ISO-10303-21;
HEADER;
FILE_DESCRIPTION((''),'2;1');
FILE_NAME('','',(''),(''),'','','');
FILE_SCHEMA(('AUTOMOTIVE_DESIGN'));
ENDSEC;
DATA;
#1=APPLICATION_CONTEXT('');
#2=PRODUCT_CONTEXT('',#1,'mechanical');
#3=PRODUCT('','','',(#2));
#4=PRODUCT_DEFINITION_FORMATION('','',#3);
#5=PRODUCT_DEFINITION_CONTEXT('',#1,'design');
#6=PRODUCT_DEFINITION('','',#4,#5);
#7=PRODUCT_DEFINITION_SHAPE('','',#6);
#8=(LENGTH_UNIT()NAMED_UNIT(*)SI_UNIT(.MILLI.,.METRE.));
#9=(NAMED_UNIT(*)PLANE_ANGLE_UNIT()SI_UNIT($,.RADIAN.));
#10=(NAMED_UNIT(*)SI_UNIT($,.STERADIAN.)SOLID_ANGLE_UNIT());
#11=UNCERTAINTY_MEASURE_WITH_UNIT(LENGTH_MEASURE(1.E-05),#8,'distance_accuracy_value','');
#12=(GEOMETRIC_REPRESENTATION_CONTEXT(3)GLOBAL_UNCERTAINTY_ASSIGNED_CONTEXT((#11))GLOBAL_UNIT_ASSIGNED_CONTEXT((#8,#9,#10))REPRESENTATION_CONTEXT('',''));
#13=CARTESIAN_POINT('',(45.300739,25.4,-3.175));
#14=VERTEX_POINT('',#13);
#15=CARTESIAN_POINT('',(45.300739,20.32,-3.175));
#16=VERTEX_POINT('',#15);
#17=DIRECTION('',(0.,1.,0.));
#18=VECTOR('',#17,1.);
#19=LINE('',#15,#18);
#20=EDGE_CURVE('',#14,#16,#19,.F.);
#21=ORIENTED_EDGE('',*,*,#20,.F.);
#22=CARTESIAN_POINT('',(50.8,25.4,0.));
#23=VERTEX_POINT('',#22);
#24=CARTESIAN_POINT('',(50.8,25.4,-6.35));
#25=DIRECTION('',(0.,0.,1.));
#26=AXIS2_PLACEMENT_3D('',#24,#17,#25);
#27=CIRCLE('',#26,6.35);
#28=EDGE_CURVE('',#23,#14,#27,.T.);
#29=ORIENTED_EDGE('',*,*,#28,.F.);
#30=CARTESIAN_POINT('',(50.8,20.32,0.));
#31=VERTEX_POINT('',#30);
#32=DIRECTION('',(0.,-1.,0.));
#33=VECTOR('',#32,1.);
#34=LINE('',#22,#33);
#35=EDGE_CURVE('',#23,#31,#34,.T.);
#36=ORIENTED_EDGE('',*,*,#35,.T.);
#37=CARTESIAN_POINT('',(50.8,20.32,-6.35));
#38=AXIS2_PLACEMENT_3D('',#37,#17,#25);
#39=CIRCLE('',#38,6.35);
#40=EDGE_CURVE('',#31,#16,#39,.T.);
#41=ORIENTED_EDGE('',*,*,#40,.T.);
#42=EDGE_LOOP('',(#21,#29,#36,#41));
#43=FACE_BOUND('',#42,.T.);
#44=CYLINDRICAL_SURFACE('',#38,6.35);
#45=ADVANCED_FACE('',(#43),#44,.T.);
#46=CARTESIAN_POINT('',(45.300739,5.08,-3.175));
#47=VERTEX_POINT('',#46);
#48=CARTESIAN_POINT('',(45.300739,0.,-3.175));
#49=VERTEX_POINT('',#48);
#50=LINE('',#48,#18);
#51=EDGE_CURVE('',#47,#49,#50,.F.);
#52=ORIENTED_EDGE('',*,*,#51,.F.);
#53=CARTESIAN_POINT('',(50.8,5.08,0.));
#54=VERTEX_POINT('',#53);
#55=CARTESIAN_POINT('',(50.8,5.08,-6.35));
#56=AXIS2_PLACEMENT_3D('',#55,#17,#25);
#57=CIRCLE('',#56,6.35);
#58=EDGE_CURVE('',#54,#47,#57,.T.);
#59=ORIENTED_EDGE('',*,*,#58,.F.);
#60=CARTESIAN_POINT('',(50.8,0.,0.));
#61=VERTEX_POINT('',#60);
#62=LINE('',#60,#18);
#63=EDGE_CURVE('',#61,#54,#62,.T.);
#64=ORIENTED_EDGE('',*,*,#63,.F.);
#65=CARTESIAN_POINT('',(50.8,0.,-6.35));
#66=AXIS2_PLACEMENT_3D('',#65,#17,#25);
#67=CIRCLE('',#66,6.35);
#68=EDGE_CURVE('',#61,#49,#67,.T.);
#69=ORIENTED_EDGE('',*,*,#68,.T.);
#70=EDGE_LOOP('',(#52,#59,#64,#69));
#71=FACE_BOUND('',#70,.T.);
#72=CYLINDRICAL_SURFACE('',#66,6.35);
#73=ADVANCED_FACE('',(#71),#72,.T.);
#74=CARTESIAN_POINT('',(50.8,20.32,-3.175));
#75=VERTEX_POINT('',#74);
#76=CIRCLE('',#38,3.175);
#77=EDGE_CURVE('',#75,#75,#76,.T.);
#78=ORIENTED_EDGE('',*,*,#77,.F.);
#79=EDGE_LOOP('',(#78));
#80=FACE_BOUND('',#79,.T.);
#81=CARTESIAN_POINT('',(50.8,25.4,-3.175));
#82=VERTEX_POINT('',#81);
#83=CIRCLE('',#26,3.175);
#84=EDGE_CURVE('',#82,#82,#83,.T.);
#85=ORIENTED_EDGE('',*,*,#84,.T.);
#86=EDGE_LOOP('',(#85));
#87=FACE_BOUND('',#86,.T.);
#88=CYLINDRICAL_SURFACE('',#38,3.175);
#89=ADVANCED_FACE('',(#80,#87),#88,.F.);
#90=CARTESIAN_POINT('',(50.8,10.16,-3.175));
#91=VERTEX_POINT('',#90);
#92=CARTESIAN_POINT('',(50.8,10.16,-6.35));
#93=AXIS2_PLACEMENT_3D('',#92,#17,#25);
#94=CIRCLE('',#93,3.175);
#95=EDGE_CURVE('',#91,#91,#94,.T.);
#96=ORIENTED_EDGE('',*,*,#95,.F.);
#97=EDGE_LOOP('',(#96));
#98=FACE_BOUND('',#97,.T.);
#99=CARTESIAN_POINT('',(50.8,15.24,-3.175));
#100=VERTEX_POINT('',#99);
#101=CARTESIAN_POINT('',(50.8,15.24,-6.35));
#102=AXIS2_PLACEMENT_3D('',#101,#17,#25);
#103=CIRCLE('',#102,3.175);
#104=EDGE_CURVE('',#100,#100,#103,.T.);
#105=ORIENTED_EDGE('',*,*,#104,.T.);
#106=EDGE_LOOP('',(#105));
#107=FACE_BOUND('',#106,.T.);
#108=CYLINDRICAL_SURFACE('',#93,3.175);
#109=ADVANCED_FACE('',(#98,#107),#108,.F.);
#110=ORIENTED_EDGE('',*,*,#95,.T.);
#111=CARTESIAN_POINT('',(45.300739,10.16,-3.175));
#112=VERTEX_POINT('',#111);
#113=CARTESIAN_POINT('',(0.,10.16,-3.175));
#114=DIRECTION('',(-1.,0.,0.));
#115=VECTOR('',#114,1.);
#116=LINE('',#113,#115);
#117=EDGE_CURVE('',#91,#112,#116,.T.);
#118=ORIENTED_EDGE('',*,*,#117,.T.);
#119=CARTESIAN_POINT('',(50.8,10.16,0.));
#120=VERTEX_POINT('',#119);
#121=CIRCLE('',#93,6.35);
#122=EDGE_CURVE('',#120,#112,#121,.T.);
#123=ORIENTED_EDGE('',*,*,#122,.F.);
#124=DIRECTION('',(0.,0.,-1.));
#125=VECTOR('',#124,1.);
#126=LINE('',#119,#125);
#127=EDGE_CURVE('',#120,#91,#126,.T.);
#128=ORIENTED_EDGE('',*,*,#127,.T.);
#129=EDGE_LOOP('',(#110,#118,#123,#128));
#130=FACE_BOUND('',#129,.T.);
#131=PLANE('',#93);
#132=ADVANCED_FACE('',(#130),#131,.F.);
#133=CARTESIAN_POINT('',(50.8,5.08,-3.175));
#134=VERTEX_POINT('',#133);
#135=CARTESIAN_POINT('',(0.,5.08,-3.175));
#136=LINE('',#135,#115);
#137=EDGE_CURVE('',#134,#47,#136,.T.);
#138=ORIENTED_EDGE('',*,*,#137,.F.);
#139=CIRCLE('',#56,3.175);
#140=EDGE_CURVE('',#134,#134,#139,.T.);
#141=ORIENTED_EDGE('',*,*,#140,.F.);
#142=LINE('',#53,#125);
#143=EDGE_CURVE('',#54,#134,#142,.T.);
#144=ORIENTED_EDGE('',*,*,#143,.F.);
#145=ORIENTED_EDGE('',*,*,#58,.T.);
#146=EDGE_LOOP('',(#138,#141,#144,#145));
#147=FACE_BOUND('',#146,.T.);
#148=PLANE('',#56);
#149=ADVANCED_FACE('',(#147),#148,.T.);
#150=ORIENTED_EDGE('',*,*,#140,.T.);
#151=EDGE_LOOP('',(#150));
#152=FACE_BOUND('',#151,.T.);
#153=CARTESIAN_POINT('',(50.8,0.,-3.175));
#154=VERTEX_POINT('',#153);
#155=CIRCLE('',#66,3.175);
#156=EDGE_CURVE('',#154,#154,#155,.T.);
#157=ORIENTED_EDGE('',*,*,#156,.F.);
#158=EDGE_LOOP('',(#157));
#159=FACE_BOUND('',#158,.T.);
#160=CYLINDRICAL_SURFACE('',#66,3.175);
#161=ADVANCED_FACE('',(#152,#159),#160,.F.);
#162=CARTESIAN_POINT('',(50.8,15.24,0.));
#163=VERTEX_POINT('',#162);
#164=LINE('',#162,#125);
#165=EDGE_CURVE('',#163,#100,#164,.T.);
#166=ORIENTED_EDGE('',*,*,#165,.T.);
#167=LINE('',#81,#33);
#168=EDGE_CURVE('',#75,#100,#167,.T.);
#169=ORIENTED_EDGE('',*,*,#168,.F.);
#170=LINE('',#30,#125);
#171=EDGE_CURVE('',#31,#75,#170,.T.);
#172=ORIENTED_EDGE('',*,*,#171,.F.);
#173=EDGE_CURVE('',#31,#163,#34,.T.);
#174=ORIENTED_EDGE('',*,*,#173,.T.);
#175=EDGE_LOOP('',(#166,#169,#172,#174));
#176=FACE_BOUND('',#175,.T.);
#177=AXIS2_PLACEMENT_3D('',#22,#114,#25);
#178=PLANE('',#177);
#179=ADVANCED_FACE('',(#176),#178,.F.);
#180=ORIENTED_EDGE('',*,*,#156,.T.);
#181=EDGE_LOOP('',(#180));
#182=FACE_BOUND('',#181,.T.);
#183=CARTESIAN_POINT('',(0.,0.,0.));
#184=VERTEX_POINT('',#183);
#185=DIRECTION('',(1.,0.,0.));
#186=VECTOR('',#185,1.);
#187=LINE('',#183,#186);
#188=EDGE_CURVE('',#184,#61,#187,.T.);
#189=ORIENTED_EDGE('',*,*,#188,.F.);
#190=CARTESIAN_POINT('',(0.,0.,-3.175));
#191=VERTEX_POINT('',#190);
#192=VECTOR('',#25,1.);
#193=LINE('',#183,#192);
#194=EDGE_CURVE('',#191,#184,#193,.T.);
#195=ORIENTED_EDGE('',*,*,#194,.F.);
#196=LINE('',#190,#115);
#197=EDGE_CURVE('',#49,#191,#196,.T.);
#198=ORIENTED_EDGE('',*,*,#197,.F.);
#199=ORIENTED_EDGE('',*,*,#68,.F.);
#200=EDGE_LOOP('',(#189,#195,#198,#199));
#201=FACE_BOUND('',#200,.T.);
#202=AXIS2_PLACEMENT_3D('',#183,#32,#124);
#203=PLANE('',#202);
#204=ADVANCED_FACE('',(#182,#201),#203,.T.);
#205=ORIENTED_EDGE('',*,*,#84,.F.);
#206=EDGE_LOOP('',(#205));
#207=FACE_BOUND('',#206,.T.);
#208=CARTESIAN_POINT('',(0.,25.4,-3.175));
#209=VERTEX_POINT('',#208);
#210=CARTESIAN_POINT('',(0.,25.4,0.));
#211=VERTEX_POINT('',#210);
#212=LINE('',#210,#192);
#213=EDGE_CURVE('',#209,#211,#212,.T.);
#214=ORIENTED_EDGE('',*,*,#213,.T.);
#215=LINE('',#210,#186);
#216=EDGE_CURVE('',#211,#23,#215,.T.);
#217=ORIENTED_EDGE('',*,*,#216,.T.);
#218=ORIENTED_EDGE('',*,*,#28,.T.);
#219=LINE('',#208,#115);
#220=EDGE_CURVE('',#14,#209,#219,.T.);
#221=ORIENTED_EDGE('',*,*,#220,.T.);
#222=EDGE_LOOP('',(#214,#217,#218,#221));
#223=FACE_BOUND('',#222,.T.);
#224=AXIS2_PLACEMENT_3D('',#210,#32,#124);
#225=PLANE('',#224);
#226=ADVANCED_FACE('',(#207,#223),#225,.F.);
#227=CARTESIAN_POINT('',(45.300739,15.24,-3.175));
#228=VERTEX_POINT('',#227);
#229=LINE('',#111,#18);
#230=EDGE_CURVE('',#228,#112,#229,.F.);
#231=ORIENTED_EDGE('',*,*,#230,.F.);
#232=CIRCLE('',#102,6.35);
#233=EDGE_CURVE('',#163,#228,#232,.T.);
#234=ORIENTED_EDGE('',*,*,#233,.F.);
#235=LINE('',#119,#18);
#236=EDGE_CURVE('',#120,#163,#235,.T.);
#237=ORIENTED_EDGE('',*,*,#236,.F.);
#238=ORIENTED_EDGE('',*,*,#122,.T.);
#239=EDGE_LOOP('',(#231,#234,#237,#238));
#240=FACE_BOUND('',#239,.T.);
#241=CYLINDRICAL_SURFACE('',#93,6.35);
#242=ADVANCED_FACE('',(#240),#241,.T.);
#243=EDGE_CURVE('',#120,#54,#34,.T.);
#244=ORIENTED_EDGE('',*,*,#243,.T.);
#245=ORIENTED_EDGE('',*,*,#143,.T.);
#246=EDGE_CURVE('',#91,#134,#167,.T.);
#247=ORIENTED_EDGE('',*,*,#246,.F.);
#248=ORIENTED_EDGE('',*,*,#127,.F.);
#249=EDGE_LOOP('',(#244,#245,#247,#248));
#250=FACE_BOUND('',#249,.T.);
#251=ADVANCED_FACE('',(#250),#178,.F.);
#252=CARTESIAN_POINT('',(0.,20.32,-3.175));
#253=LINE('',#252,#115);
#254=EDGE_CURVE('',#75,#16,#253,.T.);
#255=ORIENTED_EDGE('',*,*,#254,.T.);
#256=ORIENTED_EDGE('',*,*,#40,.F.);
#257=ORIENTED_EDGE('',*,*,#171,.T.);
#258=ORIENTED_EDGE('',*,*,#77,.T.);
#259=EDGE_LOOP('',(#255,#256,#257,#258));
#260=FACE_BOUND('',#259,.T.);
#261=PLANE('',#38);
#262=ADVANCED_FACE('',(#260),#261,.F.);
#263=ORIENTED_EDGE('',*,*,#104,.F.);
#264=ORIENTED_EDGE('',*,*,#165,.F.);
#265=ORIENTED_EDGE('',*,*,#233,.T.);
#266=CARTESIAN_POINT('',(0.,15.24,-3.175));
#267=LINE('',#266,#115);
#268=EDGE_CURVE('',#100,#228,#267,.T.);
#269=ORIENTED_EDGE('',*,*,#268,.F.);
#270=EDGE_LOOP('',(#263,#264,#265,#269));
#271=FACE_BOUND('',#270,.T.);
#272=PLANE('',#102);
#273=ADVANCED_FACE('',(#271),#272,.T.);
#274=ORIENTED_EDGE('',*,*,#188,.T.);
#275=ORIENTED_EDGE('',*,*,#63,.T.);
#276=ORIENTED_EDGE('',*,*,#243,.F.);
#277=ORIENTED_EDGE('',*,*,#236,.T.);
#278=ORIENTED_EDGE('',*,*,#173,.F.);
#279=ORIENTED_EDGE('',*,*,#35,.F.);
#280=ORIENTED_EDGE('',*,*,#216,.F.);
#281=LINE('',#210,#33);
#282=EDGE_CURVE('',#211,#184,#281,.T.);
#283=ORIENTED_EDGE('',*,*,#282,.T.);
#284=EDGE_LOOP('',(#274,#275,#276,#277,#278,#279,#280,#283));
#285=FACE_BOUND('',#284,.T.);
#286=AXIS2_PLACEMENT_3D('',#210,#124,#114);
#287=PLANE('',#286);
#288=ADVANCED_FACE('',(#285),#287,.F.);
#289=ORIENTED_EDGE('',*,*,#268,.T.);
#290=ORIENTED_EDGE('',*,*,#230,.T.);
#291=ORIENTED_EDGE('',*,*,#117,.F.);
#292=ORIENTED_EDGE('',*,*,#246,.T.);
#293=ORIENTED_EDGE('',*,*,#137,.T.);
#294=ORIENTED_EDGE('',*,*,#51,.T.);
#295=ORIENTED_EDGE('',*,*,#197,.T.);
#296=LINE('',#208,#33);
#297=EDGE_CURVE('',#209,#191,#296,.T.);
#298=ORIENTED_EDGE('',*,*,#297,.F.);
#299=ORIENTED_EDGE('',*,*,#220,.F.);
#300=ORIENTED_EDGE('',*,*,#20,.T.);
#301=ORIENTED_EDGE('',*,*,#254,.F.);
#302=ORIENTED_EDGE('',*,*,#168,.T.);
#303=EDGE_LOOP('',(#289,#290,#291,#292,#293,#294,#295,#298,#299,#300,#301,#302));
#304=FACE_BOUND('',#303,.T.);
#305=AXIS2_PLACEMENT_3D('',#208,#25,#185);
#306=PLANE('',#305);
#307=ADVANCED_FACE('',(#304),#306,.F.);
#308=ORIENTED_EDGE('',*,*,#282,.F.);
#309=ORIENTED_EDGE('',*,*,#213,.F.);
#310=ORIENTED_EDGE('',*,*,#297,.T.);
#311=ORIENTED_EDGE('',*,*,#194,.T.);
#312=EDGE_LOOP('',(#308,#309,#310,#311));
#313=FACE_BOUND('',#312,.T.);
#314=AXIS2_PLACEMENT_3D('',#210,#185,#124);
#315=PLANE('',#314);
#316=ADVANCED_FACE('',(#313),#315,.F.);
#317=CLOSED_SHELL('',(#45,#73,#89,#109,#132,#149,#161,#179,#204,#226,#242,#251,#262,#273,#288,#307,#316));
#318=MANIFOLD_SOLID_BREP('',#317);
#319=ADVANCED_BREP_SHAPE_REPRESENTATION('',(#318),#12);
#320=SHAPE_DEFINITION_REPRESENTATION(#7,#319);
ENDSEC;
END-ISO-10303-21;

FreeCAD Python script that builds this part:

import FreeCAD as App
import Part
import Sketcher
from FreeCAD import Vector
Q = App.Units.Quantity


def add_polygon(sketch, points):
    """Adds a closed chain of lines whose ends are joined by coincident constraints."""
    first, n = sketch.GeometryCount, len(points)
    for a, b in zip(points, points[1:] + points[:1]):
        sketch.addGeometry(Part.LineSegment(App.Vector(*a, 0), App.Vector(*b, 0)), False)
    for i in range(n):
        sketch.addConstraint(Sketcher.Constraint("Coincident", first + i, 2, first + (i + 1) % n, 1))

doc = App.newDocument("Part")
body = doc.addObject("PartDesign::Body", "Body")

# Sketch on XZ plane
sketch1 = doc.addObject("Sketcher::SketchObject", "Sketch")
body.addObject(sketch1)
sketch1.AttachmentSupport = (doc.XZ_Plane, [""])
sketch1.MapMode = "FlatFace"
add_polygon(sketch1, [(0, -3.175), (0, 0), (50.8, 0), (50.8, -3.175)])  # lines 0-3
sketch1.addConstraint([
    Sketcher.Constraint("Vertical", 0),
    Sketcher.Constraint("Horizontal", 1),
    Sketcher.Constraint("Vertical", 2),
    Sketcher.Constraint("Horizontal", 3),
    Sketcher.Constraint("Coincident", 0, 2, -1, 1),
    Sketcher.Constraint("DistanceX", 1, 1, 1, 2, Q("2 in")),
    Sketcher.Constraint("DistanceY", 0, 1, 0, 2, Q("0.125 in")),
])
pad1 = doc.addObject("PartDesign::Pad", "Pad")
body.addObject(pad1)
pad1.Profile = sketch1
pad1.Length = Q("1 in")
pad1.Reversed = True

# Sketch on XZ plane
sketch2 = doc.addObject("Sketcher::SketchObject", "Sketch001")
body.addObject(sketch2)
sketch2.AttachmentSupport = (doc.XZ_Plane, [""])
sketch2.MapMode = "FlatFace"
sketch2.AttachmentOffset = App.Placement(Vector(0, 0, -1 * 25.4), App.Rotation())
sketch2.addGeometry([
    Part.Circle(Vector(50.8, -6.35, 0), Vector(0, 0, 1), 6.35),
    Part.Circle(Vector(50.8, -6.35, 0), Vector(0, 0, 1), 3.175),
], False)
sketch2.addConstraint([
    Sketcher.Constraint("Coincident", 1, 3, 0, 3),
    Sketcher.Constraint("Diameter", 0, Q("0.5 in")),
    Sketcher.Constraint("Diameter", 1, Q("0.25 in")),
    Sketcher.Constraint("DistanceX", -1, 1, 0, 3, Q("2 in")),
    Sketcher.Constraint("DistanceY", 0, 3, -1, 1, Q("0.25 in")),
])
pad2 = doc.addObject("PartDesign::Pad", "Pad001")
body.addObject(pad2)
pad2.Profile = sketch2
pad2.Length = Q("0.2 in")
doc.recompute()

linearpattern = doc.addObject("PartDesign::LinearPattern", "LinearPattern")
body.addObject(linearpattern)
linearpattern.Originals = [pad2]
linearpattern.Direction = (doc.Y_Axis, [""])
linearpattern.Mode = "offset"
linearpattern.Offset = Q("0.4 in")
linearpattern.Occurrences = 3
linearpattern.Reversed = True
body.Tip = linearpattern

doc.recompute()
